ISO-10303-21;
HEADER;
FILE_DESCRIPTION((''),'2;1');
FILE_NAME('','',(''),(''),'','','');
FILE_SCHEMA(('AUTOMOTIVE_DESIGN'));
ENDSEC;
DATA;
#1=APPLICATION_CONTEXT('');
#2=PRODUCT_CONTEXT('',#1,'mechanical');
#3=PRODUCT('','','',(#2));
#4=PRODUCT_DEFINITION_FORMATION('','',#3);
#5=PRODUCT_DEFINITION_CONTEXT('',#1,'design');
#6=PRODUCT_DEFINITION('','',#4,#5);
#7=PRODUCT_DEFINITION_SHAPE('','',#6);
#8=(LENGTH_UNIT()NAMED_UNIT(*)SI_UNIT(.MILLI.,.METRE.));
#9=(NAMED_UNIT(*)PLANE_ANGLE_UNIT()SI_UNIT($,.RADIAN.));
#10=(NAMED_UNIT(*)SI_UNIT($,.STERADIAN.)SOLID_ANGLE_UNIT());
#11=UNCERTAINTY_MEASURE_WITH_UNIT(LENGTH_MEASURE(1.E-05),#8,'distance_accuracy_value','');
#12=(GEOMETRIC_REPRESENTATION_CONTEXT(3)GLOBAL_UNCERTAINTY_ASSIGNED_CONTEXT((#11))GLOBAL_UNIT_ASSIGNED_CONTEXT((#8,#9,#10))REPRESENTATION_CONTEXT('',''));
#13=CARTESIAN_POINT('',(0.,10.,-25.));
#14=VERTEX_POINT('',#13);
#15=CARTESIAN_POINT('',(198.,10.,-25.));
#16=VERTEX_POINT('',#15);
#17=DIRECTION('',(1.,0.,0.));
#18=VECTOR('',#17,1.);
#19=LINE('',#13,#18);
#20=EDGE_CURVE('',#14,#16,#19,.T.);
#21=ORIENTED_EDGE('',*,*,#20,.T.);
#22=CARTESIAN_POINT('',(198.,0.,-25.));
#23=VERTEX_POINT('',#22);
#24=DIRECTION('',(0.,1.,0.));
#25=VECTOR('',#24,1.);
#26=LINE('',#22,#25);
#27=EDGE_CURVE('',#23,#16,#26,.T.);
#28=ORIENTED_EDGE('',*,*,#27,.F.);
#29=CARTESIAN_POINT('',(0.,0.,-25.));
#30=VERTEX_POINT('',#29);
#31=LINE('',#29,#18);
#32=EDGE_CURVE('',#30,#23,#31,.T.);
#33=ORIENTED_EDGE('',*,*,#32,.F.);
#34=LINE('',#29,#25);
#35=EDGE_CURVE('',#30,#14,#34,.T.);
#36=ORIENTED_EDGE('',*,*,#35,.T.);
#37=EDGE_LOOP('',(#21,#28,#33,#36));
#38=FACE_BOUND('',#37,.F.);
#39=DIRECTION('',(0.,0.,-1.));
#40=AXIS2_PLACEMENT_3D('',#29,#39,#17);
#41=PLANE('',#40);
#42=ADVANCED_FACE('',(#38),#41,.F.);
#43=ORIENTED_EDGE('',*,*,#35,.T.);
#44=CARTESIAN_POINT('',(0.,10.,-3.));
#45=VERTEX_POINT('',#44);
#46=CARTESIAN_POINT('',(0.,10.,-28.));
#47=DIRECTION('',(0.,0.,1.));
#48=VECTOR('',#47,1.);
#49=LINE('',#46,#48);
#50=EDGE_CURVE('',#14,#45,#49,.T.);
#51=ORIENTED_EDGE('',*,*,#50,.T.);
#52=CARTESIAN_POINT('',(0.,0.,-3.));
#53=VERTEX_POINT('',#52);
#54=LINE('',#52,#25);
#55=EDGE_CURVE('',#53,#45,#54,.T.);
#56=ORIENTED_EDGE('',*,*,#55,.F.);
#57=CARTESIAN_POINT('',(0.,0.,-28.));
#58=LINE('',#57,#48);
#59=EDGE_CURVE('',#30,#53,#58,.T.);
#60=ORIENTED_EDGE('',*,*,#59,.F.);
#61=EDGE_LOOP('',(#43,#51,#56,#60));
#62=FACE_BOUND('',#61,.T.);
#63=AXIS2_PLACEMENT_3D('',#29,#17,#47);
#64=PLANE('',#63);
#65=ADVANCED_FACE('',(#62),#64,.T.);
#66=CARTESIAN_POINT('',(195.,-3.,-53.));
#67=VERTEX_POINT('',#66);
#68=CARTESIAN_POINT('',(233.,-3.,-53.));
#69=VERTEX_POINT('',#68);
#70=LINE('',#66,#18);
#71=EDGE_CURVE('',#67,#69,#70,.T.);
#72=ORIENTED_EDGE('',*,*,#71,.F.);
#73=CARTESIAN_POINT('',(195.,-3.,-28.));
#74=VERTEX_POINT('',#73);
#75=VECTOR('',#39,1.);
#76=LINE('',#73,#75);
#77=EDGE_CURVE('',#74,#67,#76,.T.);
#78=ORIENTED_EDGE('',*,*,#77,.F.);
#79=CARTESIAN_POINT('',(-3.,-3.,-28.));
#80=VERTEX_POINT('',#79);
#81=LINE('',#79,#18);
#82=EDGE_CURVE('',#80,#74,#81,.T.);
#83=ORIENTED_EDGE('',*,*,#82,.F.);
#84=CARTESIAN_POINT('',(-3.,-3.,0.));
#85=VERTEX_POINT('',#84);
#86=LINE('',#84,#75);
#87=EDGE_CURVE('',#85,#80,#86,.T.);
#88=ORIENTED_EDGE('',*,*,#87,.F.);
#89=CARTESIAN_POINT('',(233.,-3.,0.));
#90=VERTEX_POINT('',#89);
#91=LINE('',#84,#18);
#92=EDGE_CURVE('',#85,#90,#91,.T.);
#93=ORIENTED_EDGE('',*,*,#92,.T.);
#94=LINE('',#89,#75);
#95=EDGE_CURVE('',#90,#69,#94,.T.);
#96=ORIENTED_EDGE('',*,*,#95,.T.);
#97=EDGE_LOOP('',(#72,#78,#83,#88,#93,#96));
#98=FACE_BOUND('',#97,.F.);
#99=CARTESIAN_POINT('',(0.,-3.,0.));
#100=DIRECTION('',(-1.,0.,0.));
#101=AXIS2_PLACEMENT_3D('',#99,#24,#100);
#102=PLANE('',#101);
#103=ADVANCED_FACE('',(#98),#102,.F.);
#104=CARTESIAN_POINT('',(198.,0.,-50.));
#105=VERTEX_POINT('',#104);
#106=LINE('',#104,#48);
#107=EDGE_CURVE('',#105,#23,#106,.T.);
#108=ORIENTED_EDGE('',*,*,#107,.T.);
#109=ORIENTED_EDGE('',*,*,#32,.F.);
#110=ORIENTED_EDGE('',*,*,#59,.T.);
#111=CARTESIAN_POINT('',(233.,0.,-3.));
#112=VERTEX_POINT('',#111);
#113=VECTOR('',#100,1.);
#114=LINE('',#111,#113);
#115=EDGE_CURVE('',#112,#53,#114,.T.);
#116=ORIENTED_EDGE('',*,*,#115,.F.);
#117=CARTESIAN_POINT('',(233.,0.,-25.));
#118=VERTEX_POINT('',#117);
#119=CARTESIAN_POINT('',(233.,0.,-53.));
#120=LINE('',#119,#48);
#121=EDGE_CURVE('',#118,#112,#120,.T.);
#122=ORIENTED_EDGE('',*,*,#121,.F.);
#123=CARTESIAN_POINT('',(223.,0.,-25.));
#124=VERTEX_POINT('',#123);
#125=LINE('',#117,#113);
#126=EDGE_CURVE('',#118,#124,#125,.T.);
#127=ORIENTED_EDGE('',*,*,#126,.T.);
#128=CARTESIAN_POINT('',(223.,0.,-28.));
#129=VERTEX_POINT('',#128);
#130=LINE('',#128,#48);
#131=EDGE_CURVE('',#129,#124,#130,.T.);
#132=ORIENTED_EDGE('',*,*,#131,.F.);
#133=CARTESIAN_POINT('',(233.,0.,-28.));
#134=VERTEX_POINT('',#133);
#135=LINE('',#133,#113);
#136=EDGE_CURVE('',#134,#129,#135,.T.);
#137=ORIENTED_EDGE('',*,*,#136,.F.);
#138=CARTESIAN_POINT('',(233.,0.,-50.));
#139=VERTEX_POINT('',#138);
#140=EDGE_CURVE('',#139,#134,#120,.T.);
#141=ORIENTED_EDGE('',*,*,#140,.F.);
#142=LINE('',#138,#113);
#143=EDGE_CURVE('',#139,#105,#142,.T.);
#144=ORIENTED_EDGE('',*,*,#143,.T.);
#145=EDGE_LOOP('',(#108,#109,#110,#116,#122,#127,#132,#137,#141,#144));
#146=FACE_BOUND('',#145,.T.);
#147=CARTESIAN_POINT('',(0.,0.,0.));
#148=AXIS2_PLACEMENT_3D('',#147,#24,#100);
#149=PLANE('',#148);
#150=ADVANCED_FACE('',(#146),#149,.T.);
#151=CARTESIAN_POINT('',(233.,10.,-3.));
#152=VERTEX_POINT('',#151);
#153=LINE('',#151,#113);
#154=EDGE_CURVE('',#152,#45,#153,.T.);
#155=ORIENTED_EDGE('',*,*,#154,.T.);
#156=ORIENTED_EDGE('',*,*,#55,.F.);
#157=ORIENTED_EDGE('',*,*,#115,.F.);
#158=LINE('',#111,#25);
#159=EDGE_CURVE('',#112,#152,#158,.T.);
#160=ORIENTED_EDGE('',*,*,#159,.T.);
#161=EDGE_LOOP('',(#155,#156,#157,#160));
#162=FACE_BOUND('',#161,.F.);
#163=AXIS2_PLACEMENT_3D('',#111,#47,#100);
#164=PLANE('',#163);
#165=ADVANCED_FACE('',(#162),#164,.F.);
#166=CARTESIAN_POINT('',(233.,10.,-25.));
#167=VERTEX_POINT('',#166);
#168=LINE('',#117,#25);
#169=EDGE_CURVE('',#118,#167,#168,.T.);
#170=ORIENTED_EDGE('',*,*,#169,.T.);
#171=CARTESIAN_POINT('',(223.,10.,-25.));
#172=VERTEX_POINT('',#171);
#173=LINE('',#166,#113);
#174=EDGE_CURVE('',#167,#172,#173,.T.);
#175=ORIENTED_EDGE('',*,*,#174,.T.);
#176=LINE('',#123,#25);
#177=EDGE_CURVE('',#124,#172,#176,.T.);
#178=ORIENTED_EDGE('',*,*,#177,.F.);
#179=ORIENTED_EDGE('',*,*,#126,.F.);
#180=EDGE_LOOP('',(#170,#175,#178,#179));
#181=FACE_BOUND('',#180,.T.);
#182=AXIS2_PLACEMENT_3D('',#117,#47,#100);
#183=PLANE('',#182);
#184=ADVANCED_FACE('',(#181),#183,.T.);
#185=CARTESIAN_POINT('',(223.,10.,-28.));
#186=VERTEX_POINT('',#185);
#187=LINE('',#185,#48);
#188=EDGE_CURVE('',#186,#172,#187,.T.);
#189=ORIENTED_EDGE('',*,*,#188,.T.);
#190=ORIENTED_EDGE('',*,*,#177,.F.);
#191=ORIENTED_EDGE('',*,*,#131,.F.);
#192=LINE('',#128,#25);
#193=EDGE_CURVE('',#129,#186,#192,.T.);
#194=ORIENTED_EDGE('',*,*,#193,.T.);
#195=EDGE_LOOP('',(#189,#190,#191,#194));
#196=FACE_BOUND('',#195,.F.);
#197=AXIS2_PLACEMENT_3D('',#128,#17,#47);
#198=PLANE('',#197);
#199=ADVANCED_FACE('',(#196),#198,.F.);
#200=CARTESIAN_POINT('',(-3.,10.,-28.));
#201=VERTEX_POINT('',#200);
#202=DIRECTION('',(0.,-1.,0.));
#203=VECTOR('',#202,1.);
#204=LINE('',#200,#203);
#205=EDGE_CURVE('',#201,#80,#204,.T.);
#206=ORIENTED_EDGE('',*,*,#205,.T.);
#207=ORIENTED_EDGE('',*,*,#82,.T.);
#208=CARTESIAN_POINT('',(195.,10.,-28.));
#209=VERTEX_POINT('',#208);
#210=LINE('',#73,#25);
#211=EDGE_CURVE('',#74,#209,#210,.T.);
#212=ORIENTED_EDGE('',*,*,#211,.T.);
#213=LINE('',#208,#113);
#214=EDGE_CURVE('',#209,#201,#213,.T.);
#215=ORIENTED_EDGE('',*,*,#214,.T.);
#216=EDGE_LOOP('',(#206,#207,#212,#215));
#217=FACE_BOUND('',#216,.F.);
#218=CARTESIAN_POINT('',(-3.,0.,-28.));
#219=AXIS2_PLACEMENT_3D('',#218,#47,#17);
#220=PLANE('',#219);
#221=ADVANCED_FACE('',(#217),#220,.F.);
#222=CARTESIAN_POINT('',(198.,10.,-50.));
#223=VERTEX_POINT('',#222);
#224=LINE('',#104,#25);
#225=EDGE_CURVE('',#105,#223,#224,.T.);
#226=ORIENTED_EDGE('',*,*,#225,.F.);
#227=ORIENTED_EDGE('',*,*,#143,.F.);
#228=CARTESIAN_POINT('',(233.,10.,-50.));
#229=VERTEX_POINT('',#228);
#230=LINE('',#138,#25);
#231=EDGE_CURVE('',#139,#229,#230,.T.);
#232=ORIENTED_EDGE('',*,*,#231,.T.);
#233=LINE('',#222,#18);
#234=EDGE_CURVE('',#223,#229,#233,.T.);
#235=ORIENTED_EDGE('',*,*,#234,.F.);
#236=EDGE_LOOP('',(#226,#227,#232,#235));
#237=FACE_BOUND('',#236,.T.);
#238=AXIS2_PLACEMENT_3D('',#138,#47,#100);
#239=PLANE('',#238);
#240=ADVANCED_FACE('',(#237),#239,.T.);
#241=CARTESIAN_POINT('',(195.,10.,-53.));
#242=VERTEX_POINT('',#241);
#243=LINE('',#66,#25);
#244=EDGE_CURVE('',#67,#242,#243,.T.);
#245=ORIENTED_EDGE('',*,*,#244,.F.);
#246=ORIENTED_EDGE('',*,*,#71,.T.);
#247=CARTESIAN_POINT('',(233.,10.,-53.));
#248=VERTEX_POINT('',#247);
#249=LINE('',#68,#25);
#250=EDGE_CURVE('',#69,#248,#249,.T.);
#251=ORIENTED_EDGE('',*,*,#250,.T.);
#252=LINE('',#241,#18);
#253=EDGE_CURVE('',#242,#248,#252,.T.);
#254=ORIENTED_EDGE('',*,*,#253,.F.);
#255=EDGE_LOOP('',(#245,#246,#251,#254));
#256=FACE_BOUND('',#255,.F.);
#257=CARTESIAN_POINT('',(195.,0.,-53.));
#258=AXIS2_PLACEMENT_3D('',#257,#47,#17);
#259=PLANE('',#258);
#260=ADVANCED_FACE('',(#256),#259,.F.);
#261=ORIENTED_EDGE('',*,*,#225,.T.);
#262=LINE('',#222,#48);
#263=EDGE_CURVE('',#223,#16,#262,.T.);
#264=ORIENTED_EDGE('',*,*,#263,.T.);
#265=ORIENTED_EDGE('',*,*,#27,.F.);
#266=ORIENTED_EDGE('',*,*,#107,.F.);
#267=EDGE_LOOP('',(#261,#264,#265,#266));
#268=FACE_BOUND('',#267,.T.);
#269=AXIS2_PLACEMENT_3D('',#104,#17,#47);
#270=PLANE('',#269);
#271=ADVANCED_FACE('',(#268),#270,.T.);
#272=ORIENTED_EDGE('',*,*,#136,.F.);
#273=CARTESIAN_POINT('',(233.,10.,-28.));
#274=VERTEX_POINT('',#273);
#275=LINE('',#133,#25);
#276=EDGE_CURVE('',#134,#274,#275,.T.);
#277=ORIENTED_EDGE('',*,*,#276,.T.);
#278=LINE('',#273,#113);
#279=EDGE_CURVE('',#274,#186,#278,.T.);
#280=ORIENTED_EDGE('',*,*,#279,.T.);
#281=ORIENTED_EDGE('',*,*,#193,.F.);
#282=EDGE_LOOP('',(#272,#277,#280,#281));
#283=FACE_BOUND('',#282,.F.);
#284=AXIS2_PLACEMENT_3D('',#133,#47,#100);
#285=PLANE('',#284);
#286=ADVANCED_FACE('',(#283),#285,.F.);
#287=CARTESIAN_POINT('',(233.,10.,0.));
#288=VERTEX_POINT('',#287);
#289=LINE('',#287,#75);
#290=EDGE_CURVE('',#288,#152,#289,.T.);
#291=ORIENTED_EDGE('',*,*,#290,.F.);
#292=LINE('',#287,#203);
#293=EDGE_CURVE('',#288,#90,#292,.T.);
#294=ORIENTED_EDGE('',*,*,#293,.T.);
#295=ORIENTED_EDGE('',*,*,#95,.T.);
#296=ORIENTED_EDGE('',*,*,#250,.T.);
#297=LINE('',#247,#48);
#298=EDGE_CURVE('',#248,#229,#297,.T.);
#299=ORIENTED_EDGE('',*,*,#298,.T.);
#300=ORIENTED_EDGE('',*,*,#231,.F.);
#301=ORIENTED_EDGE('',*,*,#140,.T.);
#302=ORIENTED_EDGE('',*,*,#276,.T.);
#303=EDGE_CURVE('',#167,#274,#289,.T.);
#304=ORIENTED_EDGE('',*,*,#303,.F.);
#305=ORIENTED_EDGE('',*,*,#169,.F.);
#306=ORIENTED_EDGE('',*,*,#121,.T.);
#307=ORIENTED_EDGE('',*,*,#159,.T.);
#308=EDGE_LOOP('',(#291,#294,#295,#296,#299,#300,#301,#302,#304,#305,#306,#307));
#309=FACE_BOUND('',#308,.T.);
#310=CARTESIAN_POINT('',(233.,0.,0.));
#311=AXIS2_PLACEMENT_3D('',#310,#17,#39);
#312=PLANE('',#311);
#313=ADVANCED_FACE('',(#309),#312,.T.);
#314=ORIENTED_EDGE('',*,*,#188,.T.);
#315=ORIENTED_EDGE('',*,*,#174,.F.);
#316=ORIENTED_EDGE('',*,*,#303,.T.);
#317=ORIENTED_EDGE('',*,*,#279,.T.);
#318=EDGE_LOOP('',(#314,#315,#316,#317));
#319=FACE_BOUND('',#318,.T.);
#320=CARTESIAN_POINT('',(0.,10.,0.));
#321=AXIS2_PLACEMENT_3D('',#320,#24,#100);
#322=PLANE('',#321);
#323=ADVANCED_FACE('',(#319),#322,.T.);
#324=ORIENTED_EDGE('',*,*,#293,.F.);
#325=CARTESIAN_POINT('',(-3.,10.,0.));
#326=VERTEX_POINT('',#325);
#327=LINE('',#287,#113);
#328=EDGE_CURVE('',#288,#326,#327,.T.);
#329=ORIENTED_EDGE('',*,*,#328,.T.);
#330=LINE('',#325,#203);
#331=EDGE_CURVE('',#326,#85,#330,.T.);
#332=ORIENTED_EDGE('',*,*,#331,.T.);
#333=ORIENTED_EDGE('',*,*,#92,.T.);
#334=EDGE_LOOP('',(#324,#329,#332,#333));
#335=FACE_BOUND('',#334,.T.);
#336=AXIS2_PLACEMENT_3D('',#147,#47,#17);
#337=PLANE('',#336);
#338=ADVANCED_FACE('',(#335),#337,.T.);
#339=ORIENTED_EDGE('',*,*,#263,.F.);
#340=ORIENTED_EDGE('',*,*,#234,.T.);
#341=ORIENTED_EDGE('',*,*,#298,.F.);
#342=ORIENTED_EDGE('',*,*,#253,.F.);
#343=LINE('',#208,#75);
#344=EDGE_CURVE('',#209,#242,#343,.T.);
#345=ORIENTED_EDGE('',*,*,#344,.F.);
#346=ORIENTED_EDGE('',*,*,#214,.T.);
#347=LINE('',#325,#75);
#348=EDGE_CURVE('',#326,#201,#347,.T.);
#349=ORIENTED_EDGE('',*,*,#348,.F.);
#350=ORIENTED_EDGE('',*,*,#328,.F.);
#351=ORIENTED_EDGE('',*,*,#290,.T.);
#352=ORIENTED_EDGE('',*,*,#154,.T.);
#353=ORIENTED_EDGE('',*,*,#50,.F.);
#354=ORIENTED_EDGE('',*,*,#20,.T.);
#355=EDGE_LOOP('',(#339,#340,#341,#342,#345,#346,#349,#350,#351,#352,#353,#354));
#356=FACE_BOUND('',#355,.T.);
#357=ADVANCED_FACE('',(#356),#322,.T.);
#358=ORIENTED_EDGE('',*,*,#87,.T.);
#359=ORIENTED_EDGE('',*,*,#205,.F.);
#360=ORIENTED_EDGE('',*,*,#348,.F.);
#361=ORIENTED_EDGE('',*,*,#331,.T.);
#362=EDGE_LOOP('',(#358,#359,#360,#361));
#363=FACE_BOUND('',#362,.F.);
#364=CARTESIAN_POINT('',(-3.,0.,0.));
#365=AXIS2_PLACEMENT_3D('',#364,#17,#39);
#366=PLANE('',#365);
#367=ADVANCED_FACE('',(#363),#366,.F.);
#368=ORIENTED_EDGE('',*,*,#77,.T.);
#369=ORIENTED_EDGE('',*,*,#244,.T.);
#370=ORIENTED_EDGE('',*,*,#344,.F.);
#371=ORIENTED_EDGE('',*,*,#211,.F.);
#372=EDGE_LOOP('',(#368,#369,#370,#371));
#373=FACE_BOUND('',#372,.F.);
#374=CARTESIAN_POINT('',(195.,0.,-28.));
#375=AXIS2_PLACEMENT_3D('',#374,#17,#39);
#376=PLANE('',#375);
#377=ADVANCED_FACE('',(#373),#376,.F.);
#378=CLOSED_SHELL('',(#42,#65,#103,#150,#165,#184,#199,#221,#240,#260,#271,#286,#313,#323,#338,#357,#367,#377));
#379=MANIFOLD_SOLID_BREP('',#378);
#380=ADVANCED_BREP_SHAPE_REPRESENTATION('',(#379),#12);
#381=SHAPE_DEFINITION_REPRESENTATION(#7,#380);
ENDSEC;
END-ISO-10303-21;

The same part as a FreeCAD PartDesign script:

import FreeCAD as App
import Part
import Sketcher
Q = App.Units.Quantity

doc = App.newDocument("Part")
body = doc.addObject("PartDesign::Body", "Body")

# Sketch on XZ plane
sketch1 = doc.addObject("Sketcher::SketchObject", "Sketch")
body.addObject(sketch1)
sketch1.AttachmentSupport = (doc.XZ_Plane, [""])
sketch1.MapMode = "FlatFace"
sketch1.addGeometry([
    Part.LineSegment(App.Vector(233, 0, 0), App.Vector(233, -53, 0)),  # 0
    Part.LineSegment(App.Vector(233, -53, 0), App.Vector(195, -53, 0)),  # 1
    Part.LineSegment(App.Vector(195, -53, 0), App.Vector(195, -28, 0)),  # 2
    Part.LineSegment(App.Vector(195, -28, 0), App.Vector(-3, -28, 0)),  # 3
    Part.LineSegment(App.Vector(-3, -28, 0), App.Vector(-3, 0, 0)),  # 4
    Part.LineSegment(App.Vector(-3, 0, 0), App.Vector(233, 0, 0)),  # 5
], False)
sketch1.addConstraint([
    Sketcher.Constraint("Coincident", 0, 2, 1, 1),
    Sketcher.Constraint("Coincident", 1, 2, 2, 1),
    Sketcher.Constraint("Coincident", 2, 2, 3, 1),
    Sketcher.Constraint("Coincident", 3, 2, 4, 1),
    Sketcher.Constraint("Coincident", 4, 2, 5, 1),
    Sketcher.Constraint("Coincident", 5, 2, 0, 1),
    Sketcher.Constraint("Vertical", 0),
    Sketcher.Constraint("Horizontal", 1),
    Sketcher.Constraint("Vertical", 2),
    Sketcher.Constraint("Horizontal", 3),
    Sketcher.Constraint("Vertical", 4),
    Sketcher.Constraint("Horizontal", 5),
    Sketcher.Constraint("PointOnObject", 4, 2, -1),
    Sketcher.Constraint("DistanceX", 3, 2, -1, 1, Q("3 mm")),
    Sketcher.Constraint("DistanceX", 1, 2, 1, 1, Q("38 mm")),
    Sketcher.Constraint("DistanceX", 3, 2, 3, 1, Q("198 mm")),
    Sketcher.Constraint("DistanceY", 0, 2, 0, 1, Q("53 mm")),
    Sketcher.Constraint("DistanceY", 2, 1, 2, 2, Q("25 mm")),
])
pad1 = doc.addObject("PartDesign::Pad", "Pad")
body.addObject(pad1)
pad1.Profile = sketch1
pad1.Length = 3

# Sketch on XZ plane
sketch2 = doc.addObject("Sketcher::SketchObject", "Sketch001")
body.addObject(sketch2)
sketch2.AttachmentSupport = (doc.XZ_Plane, [""])
sketch2.MapMode = "FlatFace"
sketch2.addGeometry([
    Part.LineSegment(App.Vector(233, 0, 0), App.Vector(233, -3, 0)),  # 0
    Part.LineSegment(App.Vector(233, -3, 0), App.Vector(0, -3, 0)),  # 1
    Part.LineSegment(App.Vector(0, -3, 0), App.Vector(0, -25, 0)),  # 2
    Part.LineSegment(App.Vector(0, -25, 0), App.Vector(198, -25, 0)),  # 3
    Part.LineSegment(App.Vector(198, -25, 0), App.Vector(198, -50, 0)),  # 4
    Part.LineSegment(App.Vector(198, -50, 0), App.Vector(233, -50, 0)),  # 5
    Part.LineSegment(App.Vector(233, -50, 0), App.Vector(233, -53, 0)),  # 6
    Part.LineSegment(App.Vector(233, -53, 0), App.Vector(195, -53, 0)),  # 7
    Part.LineSegment(App.Vector(195, -53, 0), App.Vector(195, -28, 0)),  # 8
    Part.LineSegment(App.Vector(195, -28, 0), App.Vector(-3, -28, 0)),  # 9
    Part.LineSegment(App.Vector(-3, -28, 0), App.Vector(-3, 0, 0)),  # 10
    Part.LineSegment(App.Vector(-3, 0, 0), App.Vector(233, 0, 0)),  # 11
    Part.LineSegment(App.Vector(223, -25, 0), App.Vector(233, -25, 0)),  # 12
    Part.LineSegment(App.Vector(233, -25, 0), App.Vector(233, -28, 0)),  # 13
    Part.LineSegment(App.Vector(233, -28, 0), App.Vector(223, -28, 0)),  # 14
    Part.LineSegment(App.Vector(223, -28, 0), App.Vector(223, -25, 0)),  # 15
], False)
sketch2.addConstraint([
    Sketcher.Constraint("Coincident", 0, 2, 1, 1),
    Sketcher.Constraint("Coincident", 1, 2, 2, 1),
    Sketcher.Constraint("Coincident", 2, 2, 3, 1),
    Sketcher.Constraint("Coincident", 3, 2, 4, 1),
    Sketcher.Constraint("Coincident", 4, 2, 5, 1),
    Sketcher.Constraint("Coincident", 5, 2, 6, 1),
    Sketcher.Constraint("Coincident", 6, 2, 7, 1),
    Sketcher.Constraint("Coincident", 7, 2, 8, 1),
    Sketcher.Constraint("Coincident", 8, 2, 9, 1),
    Sketcher.Constraint("Coincident", 9, 2, 10, 1),
    Sketcher.Constraint("Coincident", 10, 2, 11, 1),
    Sketcher.Constraint("Coincident", 11, 2, 0, 1),
    Sketcher.Constraint("Coincident", 12, 2, 13, 1),
    Sketcher.Constraint("Coincident", 13, 2, 14, 1),
    Sketcher.Constraint("Coincident", 14, 2, 15, 1),
    Sketcher.Constraint("Coincident", 15, 2, 12, 1),
    Sketcher.Constraint("Vertical", 0),
    Sketcher.Constraint("Horizontal", 1),
    Sketcher.Constraint("Vertical", 2),
    Sketcher.Constraint("Horizontal", 3),
    Sketcher.Constraint("Vertical", 4),
    Sketcher.Constraint("Horizontal", 5),
    Sketcher.Constraint("Vertical", 6),
    Sketcher.Constraint("Horizontal", 7),
    Sketcher.Constraint("Vertical", 8),
    Sketcher.Constraint("Horizontal", 9),
    Sketcher.Constraint("Vertical", 10),
    Sketcher.Constraint("Horizontal", 11),
    Sketcher.Constraint("Horizontal", 12),
    Sketcher.Constraint("Vertical", 13),
    Sketcher.Constraint("Horizontal", 14),
    Sketcher.Constraint("Vertical", 15),
    Sketcher.Constraint("PointOnObject", 1, 2, -2),
    Sketcher.Constraint("PointOnObject", 10, 2, -1),
    Sketcher.Constraint("Horizontal", 3, 2, 12, 2),
    Sketcher.Constraint("Horizontal", 9, 2, 13, 2),
    Sketcher.Constraint("Vertical", 0, 2, 5, 2),
    Sketcher.Constraint("Vertical", 11, 2, 12, 2),
    Sketcher.Constraint("Equal", 3, 9),
    Sketcher.Constraint("Equal", 0, 6),
    Sketcher.Constraint("Equal", 4, 8),
    Sketcher.Constraint("DistanceX", 12, 1, 12, 2, Q("10 mm")),
    Sketcher.Constraint("DistanceY", 0, 2, 0, 1, Q("3 mm")),
    Sketcher.Constraint("DistanceY", 2, 2, 2, 1, Q("22 mm")),
    Sketcher.Constraint("DistanceX", 9, 2, -1, 1, Q("3 mm")),
    Sketcher.Constraint("DistanceY", 4, 2, 8, 2, Q("22 mm")),
    Sketcher.Constraint("DistanceX", 1, 2, 1, 1, Q("233 mm")),
    Sketcher.Constraint("DistanceX", 3, 1, 3, 2, Q("198 mm")),
])
pad2 = doc.addObject("PartDesign::Pad", "Pad001")
body.addObject(pad2)
pad2.Profile = sketch2
pad2.Length = 10
pad2.Reversed = True

doc.recompute()
